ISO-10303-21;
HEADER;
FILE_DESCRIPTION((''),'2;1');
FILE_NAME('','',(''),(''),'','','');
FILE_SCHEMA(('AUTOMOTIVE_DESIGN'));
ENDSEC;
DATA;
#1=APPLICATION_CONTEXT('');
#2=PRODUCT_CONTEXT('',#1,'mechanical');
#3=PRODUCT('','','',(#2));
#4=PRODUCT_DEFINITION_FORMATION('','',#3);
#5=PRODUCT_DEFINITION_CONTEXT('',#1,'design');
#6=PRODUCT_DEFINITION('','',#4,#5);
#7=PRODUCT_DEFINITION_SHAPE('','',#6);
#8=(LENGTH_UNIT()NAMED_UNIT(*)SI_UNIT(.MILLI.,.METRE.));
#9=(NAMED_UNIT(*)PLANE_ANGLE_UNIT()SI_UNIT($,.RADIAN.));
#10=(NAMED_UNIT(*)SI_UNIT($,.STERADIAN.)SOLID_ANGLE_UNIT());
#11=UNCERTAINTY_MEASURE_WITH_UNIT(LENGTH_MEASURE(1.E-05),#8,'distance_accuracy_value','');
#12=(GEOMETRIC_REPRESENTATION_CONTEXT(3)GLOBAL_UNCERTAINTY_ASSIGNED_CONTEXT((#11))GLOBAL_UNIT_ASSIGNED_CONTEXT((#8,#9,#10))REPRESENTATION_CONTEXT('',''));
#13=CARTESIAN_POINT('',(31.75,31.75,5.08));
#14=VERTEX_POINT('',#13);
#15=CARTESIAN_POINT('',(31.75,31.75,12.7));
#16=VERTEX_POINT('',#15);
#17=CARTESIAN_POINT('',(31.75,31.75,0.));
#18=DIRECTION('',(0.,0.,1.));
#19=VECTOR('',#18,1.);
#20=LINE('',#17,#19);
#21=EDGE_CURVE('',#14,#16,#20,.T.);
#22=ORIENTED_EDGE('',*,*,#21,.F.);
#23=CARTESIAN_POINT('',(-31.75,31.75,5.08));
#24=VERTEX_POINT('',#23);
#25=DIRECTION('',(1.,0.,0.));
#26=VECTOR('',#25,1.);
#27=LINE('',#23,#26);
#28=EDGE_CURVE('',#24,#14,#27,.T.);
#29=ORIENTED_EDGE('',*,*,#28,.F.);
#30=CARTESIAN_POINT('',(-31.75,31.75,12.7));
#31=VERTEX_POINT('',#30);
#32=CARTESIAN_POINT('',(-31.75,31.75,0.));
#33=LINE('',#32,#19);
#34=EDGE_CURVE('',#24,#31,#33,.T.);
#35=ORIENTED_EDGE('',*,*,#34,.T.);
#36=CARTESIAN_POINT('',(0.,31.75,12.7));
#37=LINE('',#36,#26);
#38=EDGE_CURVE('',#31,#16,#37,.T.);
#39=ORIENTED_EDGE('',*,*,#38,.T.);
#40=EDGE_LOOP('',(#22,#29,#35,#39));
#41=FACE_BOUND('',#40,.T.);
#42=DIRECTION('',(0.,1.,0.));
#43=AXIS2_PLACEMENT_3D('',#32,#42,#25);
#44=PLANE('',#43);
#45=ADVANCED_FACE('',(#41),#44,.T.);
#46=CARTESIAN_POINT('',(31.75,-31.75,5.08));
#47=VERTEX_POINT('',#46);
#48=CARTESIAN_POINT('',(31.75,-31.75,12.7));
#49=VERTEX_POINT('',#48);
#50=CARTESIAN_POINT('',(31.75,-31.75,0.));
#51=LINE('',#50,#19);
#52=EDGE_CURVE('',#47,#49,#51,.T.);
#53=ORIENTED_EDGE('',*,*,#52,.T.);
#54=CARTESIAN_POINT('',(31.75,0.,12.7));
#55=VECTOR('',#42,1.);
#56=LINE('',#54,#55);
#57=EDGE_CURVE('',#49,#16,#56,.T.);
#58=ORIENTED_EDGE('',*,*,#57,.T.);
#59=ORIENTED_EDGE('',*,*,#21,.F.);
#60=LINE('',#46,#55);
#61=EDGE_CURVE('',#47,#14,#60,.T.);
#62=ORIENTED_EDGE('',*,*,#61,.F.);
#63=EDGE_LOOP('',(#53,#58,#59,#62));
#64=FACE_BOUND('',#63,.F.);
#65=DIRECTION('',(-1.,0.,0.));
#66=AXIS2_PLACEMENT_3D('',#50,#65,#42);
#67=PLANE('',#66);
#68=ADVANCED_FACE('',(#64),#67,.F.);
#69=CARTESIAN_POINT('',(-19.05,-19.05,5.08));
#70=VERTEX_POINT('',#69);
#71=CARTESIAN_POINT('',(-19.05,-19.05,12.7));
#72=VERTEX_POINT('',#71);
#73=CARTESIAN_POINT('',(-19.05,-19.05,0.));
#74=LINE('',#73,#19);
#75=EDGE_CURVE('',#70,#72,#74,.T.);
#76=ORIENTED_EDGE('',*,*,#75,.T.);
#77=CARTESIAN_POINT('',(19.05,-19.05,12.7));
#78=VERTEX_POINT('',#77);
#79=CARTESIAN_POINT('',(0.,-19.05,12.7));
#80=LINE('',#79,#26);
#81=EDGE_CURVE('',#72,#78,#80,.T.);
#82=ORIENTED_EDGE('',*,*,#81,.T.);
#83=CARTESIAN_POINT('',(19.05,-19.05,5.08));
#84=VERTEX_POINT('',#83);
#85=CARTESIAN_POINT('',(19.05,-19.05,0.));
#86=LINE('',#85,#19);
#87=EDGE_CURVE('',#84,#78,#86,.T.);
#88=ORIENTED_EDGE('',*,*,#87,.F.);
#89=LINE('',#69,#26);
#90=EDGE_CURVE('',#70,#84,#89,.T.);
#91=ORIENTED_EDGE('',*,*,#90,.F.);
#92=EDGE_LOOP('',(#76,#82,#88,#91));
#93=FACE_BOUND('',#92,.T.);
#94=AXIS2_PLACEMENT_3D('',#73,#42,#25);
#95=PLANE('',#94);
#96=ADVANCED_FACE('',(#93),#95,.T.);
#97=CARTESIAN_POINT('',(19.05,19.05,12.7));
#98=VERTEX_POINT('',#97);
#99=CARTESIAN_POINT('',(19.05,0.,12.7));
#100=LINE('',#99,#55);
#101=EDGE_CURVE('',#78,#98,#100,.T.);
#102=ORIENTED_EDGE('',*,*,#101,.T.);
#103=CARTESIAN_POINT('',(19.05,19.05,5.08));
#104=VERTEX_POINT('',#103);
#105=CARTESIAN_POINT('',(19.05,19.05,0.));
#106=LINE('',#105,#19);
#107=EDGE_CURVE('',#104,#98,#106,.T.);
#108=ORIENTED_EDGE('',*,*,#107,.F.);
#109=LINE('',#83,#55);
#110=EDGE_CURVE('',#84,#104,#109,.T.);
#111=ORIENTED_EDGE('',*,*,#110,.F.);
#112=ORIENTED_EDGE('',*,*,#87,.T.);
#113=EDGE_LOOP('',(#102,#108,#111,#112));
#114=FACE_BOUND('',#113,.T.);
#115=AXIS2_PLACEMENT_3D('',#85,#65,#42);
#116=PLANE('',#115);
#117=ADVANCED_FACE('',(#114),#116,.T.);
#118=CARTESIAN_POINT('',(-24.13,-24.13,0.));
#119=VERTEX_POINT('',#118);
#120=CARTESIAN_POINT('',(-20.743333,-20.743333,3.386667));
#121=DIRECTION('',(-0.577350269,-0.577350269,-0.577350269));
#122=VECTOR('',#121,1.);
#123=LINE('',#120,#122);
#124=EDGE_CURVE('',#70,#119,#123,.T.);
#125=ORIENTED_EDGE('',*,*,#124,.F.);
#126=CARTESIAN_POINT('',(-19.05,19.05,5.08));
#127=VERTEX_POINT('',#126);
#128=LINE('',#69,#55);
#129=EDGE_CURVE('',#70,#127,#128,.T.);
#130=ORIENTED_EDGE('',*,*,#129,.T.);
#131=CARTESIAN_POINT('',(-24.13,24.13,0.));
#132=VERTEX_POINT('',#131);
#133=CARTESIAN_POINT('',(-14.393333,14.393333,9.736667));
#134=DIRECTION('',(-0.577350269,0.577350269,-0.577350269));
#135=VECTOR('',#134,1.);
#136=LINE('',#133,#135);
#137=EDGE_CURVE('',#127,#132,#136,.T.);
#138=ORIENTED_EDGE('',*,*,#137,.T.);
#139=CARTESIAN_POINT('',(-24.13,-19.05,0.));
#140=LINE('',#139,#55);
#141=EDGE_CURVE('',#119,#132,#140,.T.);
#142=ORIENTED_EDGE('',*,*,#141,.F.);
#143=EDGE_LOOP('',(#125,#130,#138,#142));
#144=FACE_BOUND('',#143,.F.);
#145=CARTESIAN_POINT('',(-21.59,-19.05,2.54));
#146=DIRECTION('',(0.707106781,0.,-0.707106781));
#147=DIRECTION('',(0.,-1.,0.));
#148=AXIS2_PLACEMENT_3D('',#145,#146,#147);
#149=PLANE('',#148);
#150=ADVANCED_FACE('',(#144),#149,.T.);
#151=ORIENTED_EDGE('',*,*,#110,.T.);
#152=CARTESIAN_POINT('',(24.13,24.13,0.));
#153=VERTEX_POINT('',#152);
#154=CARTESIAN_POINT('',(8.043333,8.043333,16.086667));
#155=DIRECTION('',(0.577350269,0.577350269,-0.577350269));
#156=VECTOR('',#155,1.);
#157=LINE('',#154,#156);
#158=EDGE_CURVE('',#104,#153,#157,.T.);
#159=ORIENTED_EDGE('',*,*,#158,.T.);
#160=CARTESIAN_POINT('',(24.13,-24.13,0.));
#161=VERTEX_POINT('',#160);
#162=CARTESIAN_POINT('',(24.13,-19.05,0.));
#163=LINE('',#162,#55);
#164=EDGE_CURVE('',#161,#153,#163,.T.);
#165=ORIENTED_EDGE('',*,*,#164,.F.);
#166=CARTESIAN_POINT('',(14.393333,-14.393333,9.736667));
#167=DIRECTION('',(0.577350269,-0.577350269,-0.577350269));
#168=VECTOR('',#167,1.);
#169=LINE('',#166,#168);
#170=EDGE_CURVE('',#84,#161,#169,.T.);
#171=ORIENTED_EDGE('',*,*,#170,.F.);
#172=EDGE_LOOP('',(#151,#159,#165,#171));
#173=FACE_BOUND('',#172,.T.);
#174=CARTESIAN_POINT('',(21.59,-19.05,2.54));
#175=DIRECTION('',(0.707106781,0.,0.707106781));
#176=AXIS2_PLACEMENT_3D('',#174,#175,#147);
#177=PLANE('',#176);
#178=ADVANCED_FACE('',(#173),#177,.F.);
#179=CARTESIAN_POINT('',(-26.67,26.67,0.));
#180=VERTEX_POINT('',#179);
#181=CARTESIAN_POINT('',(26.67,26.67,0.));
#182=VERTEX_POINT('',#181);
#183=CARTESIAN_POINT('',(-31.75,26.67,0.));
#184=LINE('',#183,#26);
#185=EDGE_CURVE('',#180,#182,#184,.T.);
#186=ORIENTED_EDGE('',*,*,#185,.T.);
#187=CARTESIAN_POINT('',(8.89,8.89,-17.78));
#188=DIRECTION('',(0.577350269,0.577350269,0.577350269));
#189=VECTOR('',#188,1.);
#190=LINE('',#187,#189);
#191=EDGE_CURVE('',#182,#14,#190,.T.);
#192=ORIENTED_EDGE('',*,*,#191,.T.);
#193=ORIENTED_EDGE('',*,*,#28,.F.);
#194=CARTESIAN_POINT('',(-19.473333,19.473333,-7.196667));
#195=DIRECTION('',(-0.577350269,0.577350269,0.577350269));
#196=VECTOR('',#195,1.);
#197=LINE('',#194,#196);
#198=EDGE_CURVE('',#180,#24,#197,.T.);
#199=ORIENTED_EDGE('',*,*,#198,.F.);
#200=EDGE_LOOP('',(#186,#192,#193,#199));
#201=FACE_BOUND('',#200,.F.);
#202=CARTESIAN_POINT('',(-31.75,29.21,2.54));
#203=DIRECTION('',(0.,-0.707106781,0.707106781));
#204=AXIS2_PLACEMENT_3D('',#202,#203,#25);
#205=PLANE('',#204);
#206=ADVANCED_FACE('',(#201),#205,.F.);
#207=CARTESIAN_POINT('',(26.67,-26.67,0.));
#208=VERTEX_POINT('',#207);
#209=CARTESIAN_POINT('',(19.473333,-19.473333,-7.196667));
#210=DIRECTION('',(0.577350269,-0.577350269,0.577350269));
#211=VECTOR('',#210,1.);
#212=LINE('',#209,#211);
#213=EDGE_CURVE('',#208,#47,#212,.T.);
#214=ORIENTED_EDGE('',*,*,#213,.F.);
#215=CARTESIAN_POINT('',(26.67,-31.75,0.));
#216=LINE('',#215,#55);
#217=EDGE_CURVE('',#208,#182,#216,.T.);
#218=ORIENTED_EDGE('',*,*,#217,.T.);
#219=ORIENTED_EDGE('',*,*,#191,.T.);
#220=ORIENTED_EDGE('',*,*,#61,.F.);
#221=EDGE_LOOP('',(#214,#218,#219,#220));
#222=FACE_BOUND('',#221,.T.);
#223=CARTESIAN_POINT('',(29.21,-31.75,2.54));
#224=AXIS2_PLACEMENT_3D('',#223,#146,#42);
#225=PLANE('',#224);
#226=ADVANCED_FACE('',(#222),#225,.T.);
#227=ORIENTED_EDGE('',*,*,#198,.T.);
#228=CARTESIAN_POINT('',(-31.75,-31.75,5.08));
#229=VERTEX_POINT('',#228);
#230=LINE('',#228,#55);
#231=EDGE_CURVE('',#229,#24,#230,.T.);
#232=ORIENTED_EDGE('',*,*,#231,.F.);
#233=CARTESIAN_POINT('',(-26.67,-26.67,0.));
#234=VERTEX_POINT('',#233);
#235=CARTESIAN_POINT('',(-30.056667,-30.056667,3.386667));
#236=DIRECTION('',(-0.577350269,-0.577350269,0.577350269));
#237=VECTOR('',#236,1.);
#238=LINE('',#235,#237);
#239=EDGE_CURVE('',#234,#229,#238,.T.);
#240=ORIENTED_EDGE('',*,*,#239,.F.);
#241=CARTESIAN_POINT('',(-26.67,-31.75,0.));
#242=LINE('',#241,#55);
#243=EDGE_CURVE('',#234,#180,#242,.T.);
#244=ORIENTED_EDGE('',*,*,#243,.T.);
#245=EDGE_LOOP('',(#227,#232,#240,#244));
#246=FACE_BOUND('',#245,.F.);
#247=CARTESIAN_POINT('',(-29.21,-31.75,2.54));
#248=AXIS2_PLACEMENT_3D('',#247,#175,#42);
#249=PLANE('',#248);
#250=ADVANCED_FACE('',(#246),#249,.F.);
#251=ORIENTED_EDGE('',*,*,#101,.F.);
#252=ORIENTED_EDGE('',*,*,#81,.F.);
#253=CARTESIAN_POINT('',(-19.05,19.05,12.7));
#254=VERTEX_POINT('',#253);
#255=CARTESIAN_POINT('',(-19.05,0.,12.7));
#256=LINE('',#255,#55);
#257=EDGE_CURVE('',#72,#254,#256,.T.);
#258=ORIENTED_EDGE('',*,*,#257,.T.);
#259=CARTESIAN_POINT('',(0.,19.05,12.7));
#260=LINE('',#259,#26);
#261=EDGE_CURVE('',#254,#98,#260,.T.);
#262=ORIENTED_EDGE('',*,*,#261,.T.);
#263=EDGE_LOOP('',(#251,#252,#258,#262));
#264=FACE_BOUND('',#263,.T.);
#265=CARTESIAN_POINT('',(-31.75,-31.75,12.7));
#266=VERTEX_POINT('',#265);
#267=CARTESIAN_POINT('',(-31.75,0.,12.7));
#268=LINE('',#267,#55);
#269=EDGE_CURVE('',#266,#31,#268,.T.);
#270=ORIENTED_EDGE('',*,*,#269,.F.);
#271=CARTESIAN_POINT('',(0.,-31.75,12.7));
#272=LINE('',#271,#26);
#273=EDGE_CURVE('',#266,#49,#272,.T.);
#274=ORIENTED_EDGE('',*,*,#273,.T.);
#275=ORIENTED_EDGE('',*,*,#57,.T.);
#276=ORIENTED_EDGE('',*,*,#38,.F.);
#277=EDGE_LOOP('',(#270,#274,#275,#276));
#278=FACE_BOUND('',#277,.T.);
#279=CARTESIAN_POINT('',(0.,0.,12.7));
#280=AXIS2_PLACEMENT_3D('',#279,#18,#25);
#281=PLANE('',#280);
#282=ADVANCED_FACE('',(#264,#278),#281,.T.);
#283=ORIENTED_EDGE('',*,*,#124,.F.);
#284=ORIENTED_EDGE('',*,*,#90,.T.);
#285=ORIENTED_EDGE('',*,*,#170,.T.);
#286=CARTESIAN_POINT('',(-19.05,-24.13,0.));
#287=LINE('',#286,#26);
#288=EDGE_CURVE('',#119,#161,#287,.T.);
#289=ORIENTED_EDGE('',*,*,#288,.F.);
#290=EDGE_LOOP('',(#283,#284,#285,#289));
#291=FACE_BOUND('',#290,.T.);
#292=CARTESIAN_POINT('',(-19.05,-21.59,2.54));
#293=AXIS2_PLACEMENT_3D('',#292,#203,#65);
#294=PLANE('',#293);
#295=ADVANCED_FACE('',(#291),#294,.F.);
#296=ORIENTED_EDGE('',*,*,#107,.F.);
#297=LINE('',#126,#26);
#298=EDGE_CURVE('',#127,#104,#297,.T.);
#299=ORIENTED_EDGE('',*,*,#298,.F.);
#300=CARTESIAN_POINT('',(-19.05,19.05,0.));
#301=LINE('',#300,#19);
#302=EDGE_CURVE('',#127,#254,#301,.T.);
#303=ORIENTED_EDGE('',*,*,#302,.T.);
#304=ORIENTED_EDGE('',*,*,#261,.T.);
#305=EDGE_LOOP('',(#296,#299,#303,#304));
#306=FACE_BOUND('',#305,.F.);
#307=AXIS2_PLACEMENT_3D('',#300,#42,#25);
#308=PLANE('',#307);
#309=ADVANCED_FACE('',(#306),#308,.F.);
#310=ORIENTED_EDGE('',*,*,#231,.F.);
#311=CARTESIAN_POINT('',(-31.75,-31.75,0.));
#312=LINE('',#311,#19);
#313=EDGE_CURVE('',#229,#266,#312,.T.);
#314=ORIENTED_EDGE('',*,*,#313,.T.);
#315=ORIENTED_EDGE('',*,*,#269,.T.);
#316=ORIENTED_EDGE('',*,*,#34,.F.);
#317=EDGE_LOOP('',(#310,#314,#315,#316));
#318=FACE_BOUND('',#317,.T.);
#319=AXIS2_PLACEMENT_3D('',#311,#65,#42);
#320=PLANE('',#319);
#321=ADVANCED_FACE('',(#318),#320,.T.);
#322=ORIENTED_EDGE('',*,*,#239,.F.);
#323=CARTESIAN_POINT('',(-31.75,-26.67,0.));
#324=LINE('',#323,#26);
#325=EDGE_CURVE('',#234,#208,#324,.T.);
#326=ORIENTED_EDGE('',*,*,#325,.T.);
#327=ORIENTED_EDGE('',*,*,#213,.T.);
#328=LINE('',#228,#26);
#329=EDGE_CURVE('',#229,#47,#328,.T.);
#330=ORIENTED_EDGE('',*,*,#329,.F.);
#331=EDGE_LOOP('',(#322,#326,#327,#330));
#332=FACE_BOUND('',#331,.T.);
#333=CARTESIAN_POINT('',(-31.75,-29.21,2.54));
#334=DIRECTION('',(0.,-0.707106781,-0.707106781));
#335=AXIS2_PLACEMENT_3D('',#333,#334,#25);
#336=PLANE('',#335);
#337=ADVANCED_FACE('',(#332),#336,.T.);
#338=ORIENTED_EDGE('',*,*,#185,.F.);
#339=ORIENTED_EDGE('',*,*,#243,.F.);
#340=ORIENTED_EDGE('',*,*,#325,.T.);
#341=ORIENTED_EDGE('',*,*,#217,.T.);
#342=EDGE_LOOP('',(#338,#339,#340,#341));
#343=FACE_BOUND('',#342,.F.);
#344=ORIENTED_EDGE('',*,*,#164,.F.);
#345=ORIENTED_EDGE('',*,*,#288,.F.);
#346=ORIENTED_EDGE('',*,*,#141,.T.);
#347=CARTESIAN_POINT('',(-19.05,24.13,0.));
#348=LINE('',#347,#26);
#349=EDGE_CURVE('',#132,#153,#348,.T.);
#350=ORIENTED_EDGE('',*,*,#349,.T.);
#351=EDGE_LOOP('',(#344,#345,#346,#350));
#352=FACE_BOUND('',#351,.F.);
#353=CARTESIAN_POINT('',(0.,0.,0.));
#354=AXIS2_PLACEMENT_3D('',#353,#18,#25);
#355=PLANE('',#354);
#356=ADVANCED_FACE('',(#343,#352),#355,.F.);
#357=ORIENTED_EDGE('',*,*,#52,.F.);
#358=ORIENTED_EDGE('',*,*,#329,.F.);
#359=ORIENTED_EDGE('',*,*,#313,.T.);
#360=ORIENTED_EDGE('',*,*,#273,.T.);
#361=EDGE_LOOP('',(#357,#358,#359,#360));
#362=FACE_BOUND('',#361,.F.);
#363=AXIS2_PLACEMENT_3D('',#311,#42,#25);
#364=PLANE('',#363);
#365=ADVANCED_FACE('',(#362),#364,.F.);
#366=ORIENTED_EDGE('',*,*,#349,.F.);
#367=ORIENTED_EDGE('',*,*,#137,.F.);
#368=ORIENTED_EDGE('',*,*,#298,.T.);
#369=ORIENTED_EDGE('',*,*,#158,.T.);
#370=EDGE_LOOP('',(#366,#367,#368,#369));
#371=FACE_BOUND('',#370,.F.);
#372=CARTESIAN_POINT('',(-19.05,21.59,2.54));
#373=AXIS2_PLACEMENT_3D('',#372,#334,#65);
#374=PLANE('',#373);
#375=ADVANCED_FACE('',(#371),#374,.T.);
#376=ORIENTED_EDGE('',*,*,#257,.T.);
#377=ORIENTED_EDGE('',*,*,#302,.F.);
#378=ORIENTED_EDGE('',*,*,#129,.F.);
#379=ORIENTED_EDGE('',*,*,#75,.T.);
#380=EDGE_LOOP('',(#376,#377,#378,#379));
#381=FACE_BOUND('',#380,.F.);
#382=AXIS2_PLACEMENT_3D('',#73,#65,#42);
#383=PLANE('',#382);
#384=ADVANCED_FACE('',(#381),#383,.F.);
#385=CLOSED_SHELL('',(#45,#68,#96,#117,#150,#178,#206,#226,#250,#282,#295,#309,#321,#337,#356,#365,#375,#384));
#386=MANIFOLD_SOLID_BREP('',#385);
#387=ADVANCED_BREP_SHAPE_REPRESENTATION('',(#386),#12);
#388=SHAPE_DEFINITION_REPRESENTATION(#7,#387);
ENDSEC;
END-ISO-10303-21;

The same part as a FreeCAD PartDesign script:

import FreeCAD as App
import Part
import Sketcher
Q = App.Units.Quantity


def edges_at(feature, points):
    """Names of the edges that pass closest to the given points."""
    edges = feature.Shape.Edges
    near = lambda p: min(range(len(edges)), key=lambda i: edges[i].distToShape(Part.Vertex(*p))[0])
    return sorted({f"Edge{near(p) + 1}" for p in points})


def add_polygon(sketch, points):
    """Adds a closed chain of lines whose ends are joined by coincident constraints."""
    first, n = sketch.GeometryCount, len(points)
    for a, b in zip(points, points[1:] + points[:1]):
        sketch.addGeometry(Part.LineSegment(App.Vector(*a, 0), App.Vector(*b, 0)), False)
    for i in range(n):
        sketch.addConstraint(Sketcher.Constraint("Coincident", first + i, 2, first + (i + 1) % n, 1))

doc = App.newDocument("Part")
body = doc.addObject("PartDesign::Body", "Body")

# Sketch on XY plane
sketch1 = body.newObject("Sketcher::SketchObject", "Sketch")
sketch1.AttachmentSupport = (doc.getObject("XY_Plane"), [""])
sketch1.MapMode = "FlatFace"
add_polygon(sketch1, [(-32, 32), (-32, -32), (32, -32), (32, 32)])  # lines 0-3
add_polygon(sketch1, [(19, -19), (-19, -19), (-19, 19), (19, 19)])  # lines 4-7
sketch1.addConstraint(Sketcher.Constraint("Vertical", 0))
sketch1.addConstraint(Sketcher.Constraint("Horizontal", 1))
sketch1.addConstraint(Sketcher.Constraint("Vertical", 2))
sketch1.addConstraint(Sketcher.Constraint("Horizontal", 3))
sketch1.addConstraint(Sketcher.Constraint("Horizontal", 4))
sketch1.addConstraint(Sketcher.Constraint("Vertical", 5))
sketch1.addConstraint(Sketcher.Constraint("Horizontal", 6))
sketch1.addConstraint(Sketcher.Constraint("Vertical", 7))
sketch1.addConstraint(Sketcher.Constraint("Symmetric", 0, 2, 2, 2, -1, 1))
sketch1.addConstraint(Sketcher.Constraint("Symmetric", 4, 2, 6, 2, -1, 1))
sketch1.addConstraint(Sketcher.Constraint("Equal", 3, 0))
sketch1.addConstraint(Sketcher.Constraint("Equal", 6, 5))
sketch1.addConstraint(Sketcher.Constraint("DistanceX", 1, 1, 1, 2, Q("2.5 in")))
sketch1.addConstraint(Sketcher.Constraint("DistanceX", 4, 2, 4, 1, Q("1.5 in")))
pad1 = body.newObject("PartDesign::Pad", "Pad")
pad1.Profile = sketch1
pad1.Length = Q("0.5 in")
doc.recompute()

chamfer = body.newObject("PartDesign::Chamfer", "Chamfer")
chamfer.Base = (pad1, edges_at(pad1, [
    (19.05, 0, 0),
    (0, 19.05, 0),
    (-19.05, 0, 0),
    (0, -19.05, 0),
]))
chamfer.Size = Q("0.2 in")
doc.recompute()

chamfer2 = body.newObject("PartDesign::Chamfer", "Chamfer001")
chamfer2.Base = (chamfer, edges_at(chamfer, [
    (0, 31.75, 0),
    (-31.75, 0, 0),
    (0, -31.75, 0),
    (31.75, 0, 0),
]))
chamfer2.Size = Q("0.2 in")

doc.recompute()
